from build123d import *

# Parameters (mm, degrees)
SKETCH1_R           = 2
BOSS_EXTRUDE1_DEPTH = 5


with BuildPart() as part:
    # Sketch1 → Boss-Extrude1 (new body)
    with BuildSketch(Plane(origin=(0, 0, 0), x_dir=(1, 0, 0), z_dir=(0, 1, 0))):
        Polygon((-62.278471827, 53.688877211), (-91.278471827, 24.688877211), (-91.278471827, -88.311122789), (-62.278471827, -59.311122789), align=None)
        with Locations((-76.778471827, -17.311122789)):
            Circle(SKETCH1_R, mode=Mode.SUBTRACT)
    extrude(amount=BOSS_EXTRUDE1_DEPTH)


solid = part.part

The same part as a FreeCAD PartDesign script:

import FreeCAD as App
import Part
import Sketcher

V = App.Vector
Q = App.Units.Quantity


def add_polygon(sketch, points):
    """Adds a closed chain of lines whose ends are joined by coincident constraints."""
    first, n = sketch.GeometryCount, len(points)
    for a, b in zip(points, points[1:] + points[:1]):
        sketch.addGeometry(Part.LineSegment(App.Vector(*a, 0), App.Vector(*b, 0)), False)
    for i in range(n):
        sketch.addConstraint(Sketcher.Constraint("Coincident", first + i, 2, first + (i + 1) % n, 1))

doc = App.newDocument("Part")
body = doc.addObject("PartDesign::Body", "Body")

sketch1 = body.newObject("Sketcher::SketchObject", "Sketch")
sketch1.AttachmentSupport = (doc.getObject("XZ_Plane"), [""])
sketch1.MapMode = "FlatFace"
add_polygon(sketch1, [(-62.3, -53.7), (-91.3, -24.7), (-91.3, 88.3), (-62.3, 59.3)])
sketch1.addGeometry(Part.Circle(V(-76.8, 17.3, 0), V(0, 0, 1), 2), False)
sketch1.addConstraint(Sketcher.Constraint("Vertical", 1))
sketch1.addConstraint(Sketcher.Constraint("Vertical", 3))
sketch1.addConstraint(Sketcher.Constraint("Parallel", 0, 2))
sketch1.addConstraint(Sketcher.Constraint("Diameter", 4, Q("4 mm")))
sketch1.addConstraint(Sketcher.Constraint("DistanceY", 1, 1, 1, 2, Q("113 mm")))
sketch1.addConstraint(Sketcher.Constraint("Angle", 0, Q("135 deg")))
sketch1.addConstraint(Sketcher.Constraint("DistanceY", 0, 2, 4, 3, Q("42 mm")))
sketch1.addConstraint(Sketcher.Constraint("DistanceX", 1, 2, 2, 2, Q("29 mm")))
sketch1.addConstraint(Sketcher.Constraint("DistanceX", 0, 2, 4, 3, Q("14.5 mm")))
sketch1.addConstraint(Sketcher.Constraint("DistanceX", 4, 3, -1, 1, Q("76.778472 mm")))
sketch1.addConstraint(Sketcher.Constraint("DistanceY", -1, 1, 4, 3, Q("17.311123 mm")))
pad1 = body.newObject("PartDesign::Pad", "Pad")
pad1.Profile = sketch1
pad1.Length = 5
pad1.Reversed = True

doc.recompute()
